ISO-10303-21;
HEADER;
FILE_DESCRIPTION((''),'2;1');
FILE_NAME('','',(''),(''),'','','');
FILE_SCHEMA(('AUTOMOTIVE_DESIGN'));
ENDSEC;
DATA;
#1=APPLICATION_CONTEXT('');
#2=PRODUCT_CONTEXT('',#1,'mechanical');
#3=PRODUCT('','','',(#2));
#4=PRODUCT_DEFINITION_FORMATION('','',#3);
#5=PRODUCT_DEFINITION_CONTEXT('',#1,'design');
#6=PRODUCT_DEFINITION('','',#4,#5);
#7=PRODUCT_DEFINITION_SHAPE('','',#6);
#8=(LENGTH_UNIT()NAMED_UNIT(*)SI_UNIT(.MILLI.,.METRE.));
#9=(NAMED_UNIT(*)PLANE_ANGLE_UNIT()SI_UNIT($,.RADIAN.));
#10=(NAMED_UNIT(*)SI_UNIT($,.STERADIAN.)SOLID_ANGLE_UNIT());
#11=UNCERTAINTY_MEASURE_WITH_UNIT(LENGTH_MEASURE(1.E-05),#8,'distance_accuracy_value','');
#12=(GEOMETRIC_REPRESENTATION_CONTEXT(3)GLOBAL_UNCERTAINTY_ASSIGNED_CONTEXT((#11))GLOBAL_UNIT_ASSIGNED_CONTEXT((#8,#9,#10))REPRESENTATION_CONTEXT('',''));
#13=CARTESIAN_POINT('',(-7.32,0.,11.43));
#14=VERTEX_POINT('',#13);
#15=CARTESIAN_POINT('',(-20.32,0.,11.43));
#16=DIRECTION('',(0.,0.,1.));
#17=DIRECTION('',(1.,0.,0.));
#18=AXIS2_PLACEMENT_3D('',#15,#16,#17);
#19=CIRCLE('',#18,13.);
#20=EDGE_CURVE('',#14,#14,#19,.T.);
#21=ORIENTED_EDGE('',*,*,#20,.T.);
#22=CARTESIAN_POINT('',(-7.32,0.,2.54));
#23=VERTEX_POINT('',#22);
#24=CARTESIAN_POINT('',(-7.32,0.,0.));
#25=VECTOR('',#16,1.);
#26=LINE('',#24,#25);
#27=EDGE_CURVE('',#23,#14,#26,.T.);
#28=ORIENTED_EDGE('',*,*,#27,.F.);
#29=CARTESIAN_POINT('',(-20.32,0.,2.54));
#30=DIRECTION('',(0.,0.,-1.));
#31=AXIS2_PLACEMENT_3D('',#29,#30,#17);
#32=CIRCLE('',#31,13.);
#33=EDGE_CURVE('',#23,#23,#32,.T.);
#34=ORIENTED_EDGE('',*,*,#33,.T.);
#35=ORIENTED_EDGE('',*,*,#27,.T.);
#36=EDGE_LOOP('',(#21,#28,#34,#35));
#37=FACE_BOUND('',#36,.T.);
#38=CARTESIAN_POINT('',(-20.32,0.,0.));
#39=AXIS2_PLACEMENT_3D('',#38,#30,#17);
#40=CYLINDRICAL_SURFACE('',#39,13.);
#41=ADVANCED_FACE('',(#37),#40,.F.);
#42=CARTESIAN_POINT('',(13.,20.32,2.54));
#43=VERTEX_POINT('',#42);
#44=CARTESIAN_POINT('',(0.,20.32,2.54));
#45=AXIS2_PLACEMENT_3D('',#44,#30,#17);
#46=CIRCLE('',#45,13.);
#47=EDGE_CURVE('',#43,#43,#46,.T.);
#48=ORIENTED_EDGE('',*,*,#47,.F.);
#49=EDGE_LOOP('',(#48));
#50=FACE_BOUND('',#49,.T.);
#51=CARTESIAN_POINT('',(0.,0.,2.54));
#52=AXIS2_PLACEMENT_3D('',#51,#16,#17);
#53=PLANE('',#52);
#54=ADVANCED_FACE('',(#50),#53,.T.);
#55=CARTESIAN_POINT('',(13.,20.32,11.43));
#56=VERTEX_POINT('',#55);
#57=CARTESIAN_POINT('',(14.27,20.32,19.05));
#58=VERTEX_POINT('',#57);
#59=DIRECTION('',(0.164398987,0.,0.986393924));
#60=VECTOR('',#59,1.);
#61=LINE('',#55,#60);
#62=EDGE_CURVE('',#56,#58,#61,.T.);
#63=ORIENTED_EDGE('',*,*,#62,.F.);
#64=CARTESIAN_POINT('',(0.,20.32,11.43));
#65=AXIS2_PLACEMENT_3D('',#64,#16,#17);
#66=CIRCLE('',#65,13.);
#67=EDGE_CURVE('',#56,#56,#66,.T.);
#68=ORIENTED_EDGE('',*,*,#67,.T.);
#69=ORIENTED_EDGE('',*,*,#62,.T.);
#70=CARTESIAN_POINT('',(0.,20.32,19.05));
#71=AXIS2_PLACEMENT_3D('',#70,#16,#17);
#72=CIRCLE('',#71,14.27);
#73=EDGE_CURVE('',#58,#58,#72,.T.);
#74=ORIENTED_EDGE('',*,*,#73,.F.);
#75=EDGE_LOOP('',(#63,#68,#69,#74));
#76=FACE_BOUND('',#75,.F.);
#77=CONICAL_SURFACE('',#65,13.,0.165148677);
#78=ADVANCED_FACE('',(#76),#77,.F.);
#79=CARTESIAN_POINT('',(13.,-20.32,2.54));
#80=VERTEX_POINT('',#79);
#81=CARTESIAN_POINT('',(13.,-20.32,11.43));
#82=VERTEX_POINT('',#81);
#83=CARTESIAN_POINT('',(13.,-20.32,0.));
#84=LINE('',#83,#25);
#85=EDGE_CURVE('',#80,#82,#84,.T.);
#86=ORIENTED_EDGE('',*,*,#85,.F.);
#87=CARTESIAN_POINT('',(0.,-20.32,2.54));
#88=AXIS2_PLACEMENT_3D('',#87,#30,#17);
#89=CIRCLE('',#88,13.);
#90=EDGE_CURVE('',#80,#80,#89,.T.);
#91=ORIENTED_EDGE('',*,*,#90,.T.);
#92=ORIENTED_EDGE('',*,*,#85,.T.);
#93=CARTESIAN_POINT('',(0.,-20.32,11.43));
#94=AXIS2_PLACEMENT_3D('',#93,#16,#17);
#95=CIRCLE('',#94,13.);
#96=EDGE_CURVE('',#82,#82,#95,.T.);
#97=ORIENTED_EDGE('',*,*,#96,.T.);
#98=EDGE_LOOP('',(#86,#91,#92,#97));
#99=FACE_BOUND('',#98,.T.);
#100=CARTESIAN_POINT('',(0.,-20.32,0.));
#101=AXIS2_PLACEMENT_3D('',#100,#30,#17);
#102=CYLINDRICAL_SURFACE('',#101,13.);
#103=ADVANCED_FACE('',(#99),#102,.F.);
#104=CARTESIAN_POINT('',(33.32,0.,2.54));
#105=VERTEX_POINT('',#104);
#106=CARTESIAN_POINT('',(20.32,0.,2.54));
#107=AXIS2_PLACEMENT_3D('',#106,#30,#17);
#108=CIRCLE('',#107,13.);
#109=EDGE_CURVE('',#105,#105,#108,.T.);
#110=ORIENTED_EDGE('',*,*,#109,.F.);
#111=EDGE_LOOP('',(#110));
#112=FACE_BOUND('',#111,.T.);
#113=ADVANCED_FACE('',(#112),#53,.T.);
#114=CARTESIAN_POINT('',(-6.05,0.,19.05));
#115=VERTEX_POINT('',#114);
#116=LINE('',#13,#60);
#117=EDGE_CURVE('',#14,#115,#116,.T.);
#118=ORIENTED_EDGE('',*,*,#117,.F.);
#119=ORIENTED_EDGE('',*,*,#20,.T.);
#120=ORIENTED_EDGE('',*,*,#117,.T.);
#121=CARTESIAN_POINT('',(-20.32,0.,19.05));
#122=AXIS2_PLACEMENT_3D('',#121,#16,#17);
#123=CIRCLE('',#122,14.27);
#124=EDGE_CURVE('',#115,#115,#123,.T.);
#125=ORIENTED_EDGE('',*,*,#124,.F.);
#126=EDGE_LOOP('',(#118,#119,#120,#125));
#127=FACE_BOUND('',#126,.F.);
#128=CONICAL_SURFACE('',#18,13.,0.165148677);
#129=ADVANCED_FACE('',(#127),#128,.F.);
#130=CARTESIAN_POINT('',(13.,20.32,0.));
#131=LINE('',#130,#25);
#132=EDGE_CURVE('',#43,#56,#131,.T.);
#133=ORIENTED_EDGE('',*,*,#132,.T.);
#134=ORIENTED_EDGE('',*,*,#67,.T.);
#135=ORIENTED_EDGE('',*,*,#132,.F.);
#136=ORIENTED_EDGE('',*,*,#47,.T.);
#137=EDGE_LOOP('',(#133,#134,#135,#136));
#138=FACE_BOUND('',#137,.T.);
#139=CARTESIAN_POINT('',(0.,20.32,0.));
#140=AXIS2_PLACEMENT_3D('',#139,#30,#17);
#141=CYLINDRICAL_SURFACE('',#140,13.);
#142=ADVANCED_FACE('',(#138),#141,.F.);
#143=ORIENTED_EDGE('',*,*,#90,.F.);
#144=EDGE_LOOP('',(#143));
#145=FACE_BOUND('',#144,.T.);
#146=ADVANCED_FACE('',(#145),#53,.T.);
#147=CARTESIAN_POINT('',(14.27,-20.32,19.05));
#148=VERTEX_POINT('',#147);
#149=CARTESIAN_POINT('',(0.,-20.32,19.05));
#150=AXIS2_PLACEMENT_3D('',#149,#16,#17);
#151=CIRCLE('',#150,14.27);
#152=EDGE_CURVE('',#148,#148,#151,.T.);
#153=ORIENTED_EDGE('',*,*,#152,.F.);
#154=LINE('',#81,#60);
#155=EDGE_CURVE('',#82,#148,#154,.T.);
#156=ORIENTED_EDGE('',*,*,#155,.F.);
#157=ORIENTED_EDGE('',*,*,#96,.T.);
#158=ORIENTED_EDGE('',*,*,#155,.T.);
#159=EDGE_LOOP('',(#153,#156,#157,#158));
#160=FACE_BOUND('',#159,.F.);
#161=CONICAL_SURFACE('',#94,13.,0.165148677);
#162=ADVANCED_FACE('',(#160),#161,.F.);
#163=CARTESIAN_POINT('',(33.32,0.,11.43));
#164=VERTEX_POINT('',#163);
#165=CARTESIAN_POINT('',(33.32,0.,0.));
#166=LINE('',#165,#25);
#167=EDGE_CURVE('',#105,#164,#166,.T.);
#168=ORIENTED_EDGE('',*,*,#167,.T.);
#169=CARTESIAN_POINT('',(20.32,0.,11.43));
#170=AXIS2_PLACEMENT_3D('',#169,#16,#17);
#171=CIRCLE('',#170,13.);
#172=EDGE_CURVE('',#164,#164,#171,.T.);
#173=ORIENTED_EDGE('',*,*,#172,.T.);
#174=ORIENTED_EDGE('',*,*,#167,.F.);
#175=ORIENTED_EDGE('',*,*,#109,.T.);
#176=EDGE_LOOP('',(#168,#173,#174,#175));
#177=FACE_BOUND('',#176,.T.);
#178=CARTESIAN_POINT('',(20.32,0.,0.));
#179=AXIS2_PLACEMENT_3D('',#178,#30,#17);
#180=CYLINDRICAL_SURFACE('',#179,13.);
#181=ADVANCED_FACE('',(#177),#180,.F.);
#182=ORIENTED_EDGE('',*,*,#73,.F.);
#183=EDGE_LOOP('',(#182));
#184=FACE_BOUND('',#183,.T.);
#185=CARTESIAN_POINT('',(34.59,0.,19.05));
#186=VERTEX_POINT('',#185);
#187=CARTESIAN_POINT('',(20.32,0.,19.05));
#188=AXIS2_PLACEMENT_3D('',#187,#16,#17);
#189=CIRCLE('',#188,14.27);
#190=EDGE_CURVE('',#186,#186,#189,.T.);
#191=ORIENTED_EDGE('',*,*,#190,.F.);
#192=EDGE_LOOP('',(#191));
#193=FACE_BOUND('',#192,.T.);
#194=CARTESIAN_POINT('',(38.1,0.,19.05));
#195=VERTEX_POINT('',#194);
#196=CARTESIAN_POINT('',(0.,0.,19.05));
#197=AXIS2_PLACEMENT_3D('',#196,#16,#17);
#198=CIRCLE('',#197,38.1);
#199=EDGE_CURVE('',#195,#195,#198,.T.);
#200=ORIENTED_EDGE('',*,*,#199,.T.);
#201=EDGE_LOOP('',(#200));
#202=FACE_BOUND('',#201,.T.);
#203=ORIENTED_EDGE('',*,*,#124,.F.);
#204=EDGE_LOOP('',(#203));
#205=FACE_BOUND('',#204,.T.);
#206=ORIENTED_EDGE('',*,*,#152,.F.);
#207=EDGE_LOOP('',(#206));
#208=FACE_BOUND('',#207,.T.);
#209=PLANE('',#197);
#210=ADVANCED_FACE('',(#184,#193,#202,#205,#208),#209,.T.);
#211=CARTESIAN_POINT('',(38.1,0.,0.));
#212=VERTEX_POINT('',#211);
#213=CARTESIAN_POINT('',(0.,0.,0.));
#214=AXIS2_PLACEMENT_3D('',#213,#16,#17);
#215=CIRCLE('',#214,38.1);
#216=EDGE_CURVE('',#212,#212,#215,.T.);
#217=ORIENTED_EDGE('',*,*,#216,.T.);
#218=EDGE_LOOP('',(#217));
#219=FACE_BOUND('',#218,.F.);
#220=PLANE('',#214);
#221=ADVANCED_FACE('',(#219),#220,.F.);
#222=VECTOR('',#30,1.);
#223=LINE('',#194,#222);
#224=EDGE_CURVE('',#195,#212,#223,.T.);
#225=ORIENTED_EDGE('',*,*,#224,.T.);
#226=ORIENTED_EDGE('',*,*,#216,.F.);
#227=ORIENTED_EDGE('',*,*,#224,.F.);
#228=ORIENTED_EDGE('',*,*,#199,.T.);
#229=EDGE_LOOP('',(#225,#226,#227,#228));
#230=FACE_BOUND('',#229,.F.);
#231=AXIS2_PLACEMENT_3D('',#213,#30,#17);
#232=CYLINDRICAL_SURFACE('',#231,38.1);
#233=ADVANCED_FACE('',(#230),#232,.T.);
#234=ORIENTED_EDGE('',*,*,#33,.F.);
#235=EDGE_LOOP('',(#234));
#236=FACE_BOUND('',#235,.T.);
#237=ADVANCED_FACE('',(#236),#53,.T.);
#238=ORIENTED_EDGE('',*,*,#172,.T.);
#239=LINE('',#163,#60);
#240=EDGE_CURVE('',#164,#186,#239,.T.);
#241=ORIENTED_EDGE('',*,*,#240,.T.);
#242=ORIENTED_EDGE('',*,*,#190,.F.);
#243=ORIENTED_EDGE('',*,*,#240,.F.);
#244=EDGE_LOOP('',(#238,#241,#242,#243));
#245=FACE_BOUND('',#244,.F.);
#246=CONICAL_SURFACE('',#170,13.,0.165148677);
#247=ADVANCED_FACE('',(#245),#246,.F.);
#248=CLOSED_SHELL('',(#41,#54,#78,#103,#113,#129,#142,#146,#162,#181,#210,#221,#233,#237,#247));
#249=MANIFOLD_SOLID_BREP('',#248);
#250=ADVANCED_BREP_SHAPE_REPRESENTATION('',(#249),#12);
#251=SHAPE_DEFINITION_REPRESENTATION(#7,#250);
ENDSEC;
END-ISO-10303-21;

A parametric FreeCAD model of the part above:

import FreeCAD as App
import Part
import Sketcher

V = App.Vector
Q = App.Units.Quantity


def edges_at(feature, points):
    """Names of the edges that pass closest to the given points."""
    edges = feature.Shape.Edges
    near = lambda p: min(range(len(edges)), key=lambda i: edges[i].distToShape(Part.Vertex(*p))[0])
    return sorted({f"Edge{near(p) + 1}" for p in points})

doc = App.newDocument("Part")
body = doc.addObject("PartDesign::Body", "Body")

# Sketch on XY plane
sketch1 = body.newObject("Sketcher::SketchObject", "Sketch")
sketch1.AttachmentSupport = (doc.getObject("XY_Plane"), [""])
sketch1.MapMode = "FlatFace"
sketch1.addGeometry(Part.Circle(V(0, 0, 0), V(0, 0, 1), 38), False)
sketch1.addGeometry(Part.Circle(V(0, -20, 0), V(0, 0, 1), 13), False)
sketch1.addGeometry(Part.Circle(V(-20, 0, 0), V(0, 0, 1), 13), False)
sketch1.addGeometry(Part.Circle(V(20, 0, 0), V(0, 0, 1), 13), False)
sketch1.addGeometry(Part.Circle(V(0, 20, 0), V(0, 0, 1), 13), False)
sketch1.addConstraint(Sketcher.Constraint("Coincident", 0, 3, -1, 1))
sketch1.addConstraint(Sketcher.Constraint("Equal", 1, 2))
sketch1.addConstraint(Sketcher.Constraint("Equal", 2, 3))
sketch1.addConstraint(Sketcher.Constraint("Equal", 3, 4))
sketch1.addConstraint(Sketcher.Constraint("Symmetric", 2, 3, 3, 3, -1, 1))
sketch1.addConstraint(Sketcher.Constraint("Symmetric", 1, 3, 4, 3, -1, 1))
sketch1.addConstraint(Sketcher.Constraint("PointOnObject", 1, 3, -2))
sketch1.addConstraint(Sketcher.Constraint("PointOnObject", 2, 3, -1))
sketch1.addConstraint(Sketcher.Constraint("Diameter", 0, Q("3 in")))
sketch1.addConstraint(Sketcher.Constraint("DistanceY", 1, 3, -1, 1, Q("0.8 in")))
sketch1.addConstraint(Sketcher.Constraint("DistanceX", 2, 3, -1, 1, Q("0.8 in")))
sketch1.addConstraint(Sketcher.Constraint("Diameter", 1, 26.0))
pad1 = body.newObject("PartDesign::Pad", "Pad")
pad1.Profile = sketch1
pad1.Length = Q("0.75 in")

# Sketch on XY plane
sketch2 = body.newObject("Sketcher::SketchObject", "Sketch001")
sketch2.AttachmentSupport = (doc.getObject("XY_Plane"), [""])
sketch2.MapMode = "FlatFace"
sketch2.addGeometry(Part.Circle(V(0, 0, 0), V(0, 0, 1), 38.1), False)
sketch2.addGeometry(Part.Circle(V(-21.6, -21.6, 0), V(0, 0, 1), 3.2), False)
sketch2.addGeometry(Part.Circle(V(21.6, -21.6, 0), V(0, 0, 1), 3.2), False)
sketch2.addGeometry(Part.Circle(V(-21.6, 21.6, 0), V(0, 0, 1), 3.2), False)
sketch2.addGeometry(Part.Circle(V(21.6, 21.6, 0), V(0, 0, 1), 3.2), False)
sketch2.addConstraint(Sketcher.Constraint("Coincident", 0, 3, -1, 1))
sketch2.addConstraint(Sketcher.Constraint("Equal", 1, 2))
sketch2.addConstraint(Sketcher.Constraint("Equal", 2, 3))
sketch2.addConstraint(Sketcher.Constraint("Equal", 3, 4))
sketch2.addConstraint(Sketcher.Constraint("Symmetric", 2, 3, 3, 3, -1, 1))
sketch2.addConstraint(Sketcher.Constraint("Symmetric", 1, 3, 4, 3, -1, 1))
sketch2.addConstraint(Sketcher.Constraint("Symmetric", 1, 3, 2, 3, -2))
sketch2.addConstraint(Sketcher.Constraint("Diameter", 0, Q("3 in")))
sketch2.addConstraint(Sketcher.Constraint("Diameter", 1, Q("0.25 in")))
sketch2.addConstraint(Sketcher.Constraint("DistanceX", 1, 3, 2, 3, 43.105229))
sketch2.addConstraint(Sketcher.Constraint("DistanceY", 1, 3, 3, 3, 43.105229))
pad2 = body.newObject("PartDesign::Pad", "Pad001")
pad2.Profile = sketch2
pad2.Length = Q("0.1 in")
doc.recompute()

chamfer = body.newObject("PartDesign::Chamfer", "Chamfer")
chamfer.Base = (pad2, edges_at(pad2, [(-13, -20.32, 19.05)]))
chamfer.ChamferType = "Two distances"
chamfer.Size = Q("0.3 in")
chamfer.Size2 = Q("0.05 in")
chamfer.FlipDirection = True
doc.recompute()

chamfer2 = body.newObject("PartDesign::Chamfer", "Chamfer001")
chamfer2.Base = (chamfer, edges_at(chamfer, [(-33.32, 0, 19.05)]))
chamfer2.ChamferType = "Two distances"
chamfer2.Size = Q("0.3 in")
chamfer2.Size2 = Q("0.05 in")
chamfer2.FlipDirection = True
doc.recompute()

chamfer3 = body.newObject("PartDesign::Chamfer", "Chamfer002")
chamfer3.Base = (chamfer2, edges_at(chamfer2, [(-13, 20.32, 19.05)]))
chamfer3.ChamferType = "Two distances"
chamfer3.Size = Q("0.3 in")
chamfer3.Size2 = Q("0.05 in")
chamfer3.FlipDirection = True
doc.recompute()

chamfer4 = body.newObject("PartDesign::Chamfer", "Chamfer003")
chamfer4.Base = (chamfer3, edges_at(chamfer3, [(7.32, 0, 19.05)]))
chamfer4.ChamferType = "Two distances"
chamfer4.Size = Q("0.3 in")
chamfer4.Size2 = Q("0.05 in")
chamfer4.FlipDirection = True

doc.recompute()
